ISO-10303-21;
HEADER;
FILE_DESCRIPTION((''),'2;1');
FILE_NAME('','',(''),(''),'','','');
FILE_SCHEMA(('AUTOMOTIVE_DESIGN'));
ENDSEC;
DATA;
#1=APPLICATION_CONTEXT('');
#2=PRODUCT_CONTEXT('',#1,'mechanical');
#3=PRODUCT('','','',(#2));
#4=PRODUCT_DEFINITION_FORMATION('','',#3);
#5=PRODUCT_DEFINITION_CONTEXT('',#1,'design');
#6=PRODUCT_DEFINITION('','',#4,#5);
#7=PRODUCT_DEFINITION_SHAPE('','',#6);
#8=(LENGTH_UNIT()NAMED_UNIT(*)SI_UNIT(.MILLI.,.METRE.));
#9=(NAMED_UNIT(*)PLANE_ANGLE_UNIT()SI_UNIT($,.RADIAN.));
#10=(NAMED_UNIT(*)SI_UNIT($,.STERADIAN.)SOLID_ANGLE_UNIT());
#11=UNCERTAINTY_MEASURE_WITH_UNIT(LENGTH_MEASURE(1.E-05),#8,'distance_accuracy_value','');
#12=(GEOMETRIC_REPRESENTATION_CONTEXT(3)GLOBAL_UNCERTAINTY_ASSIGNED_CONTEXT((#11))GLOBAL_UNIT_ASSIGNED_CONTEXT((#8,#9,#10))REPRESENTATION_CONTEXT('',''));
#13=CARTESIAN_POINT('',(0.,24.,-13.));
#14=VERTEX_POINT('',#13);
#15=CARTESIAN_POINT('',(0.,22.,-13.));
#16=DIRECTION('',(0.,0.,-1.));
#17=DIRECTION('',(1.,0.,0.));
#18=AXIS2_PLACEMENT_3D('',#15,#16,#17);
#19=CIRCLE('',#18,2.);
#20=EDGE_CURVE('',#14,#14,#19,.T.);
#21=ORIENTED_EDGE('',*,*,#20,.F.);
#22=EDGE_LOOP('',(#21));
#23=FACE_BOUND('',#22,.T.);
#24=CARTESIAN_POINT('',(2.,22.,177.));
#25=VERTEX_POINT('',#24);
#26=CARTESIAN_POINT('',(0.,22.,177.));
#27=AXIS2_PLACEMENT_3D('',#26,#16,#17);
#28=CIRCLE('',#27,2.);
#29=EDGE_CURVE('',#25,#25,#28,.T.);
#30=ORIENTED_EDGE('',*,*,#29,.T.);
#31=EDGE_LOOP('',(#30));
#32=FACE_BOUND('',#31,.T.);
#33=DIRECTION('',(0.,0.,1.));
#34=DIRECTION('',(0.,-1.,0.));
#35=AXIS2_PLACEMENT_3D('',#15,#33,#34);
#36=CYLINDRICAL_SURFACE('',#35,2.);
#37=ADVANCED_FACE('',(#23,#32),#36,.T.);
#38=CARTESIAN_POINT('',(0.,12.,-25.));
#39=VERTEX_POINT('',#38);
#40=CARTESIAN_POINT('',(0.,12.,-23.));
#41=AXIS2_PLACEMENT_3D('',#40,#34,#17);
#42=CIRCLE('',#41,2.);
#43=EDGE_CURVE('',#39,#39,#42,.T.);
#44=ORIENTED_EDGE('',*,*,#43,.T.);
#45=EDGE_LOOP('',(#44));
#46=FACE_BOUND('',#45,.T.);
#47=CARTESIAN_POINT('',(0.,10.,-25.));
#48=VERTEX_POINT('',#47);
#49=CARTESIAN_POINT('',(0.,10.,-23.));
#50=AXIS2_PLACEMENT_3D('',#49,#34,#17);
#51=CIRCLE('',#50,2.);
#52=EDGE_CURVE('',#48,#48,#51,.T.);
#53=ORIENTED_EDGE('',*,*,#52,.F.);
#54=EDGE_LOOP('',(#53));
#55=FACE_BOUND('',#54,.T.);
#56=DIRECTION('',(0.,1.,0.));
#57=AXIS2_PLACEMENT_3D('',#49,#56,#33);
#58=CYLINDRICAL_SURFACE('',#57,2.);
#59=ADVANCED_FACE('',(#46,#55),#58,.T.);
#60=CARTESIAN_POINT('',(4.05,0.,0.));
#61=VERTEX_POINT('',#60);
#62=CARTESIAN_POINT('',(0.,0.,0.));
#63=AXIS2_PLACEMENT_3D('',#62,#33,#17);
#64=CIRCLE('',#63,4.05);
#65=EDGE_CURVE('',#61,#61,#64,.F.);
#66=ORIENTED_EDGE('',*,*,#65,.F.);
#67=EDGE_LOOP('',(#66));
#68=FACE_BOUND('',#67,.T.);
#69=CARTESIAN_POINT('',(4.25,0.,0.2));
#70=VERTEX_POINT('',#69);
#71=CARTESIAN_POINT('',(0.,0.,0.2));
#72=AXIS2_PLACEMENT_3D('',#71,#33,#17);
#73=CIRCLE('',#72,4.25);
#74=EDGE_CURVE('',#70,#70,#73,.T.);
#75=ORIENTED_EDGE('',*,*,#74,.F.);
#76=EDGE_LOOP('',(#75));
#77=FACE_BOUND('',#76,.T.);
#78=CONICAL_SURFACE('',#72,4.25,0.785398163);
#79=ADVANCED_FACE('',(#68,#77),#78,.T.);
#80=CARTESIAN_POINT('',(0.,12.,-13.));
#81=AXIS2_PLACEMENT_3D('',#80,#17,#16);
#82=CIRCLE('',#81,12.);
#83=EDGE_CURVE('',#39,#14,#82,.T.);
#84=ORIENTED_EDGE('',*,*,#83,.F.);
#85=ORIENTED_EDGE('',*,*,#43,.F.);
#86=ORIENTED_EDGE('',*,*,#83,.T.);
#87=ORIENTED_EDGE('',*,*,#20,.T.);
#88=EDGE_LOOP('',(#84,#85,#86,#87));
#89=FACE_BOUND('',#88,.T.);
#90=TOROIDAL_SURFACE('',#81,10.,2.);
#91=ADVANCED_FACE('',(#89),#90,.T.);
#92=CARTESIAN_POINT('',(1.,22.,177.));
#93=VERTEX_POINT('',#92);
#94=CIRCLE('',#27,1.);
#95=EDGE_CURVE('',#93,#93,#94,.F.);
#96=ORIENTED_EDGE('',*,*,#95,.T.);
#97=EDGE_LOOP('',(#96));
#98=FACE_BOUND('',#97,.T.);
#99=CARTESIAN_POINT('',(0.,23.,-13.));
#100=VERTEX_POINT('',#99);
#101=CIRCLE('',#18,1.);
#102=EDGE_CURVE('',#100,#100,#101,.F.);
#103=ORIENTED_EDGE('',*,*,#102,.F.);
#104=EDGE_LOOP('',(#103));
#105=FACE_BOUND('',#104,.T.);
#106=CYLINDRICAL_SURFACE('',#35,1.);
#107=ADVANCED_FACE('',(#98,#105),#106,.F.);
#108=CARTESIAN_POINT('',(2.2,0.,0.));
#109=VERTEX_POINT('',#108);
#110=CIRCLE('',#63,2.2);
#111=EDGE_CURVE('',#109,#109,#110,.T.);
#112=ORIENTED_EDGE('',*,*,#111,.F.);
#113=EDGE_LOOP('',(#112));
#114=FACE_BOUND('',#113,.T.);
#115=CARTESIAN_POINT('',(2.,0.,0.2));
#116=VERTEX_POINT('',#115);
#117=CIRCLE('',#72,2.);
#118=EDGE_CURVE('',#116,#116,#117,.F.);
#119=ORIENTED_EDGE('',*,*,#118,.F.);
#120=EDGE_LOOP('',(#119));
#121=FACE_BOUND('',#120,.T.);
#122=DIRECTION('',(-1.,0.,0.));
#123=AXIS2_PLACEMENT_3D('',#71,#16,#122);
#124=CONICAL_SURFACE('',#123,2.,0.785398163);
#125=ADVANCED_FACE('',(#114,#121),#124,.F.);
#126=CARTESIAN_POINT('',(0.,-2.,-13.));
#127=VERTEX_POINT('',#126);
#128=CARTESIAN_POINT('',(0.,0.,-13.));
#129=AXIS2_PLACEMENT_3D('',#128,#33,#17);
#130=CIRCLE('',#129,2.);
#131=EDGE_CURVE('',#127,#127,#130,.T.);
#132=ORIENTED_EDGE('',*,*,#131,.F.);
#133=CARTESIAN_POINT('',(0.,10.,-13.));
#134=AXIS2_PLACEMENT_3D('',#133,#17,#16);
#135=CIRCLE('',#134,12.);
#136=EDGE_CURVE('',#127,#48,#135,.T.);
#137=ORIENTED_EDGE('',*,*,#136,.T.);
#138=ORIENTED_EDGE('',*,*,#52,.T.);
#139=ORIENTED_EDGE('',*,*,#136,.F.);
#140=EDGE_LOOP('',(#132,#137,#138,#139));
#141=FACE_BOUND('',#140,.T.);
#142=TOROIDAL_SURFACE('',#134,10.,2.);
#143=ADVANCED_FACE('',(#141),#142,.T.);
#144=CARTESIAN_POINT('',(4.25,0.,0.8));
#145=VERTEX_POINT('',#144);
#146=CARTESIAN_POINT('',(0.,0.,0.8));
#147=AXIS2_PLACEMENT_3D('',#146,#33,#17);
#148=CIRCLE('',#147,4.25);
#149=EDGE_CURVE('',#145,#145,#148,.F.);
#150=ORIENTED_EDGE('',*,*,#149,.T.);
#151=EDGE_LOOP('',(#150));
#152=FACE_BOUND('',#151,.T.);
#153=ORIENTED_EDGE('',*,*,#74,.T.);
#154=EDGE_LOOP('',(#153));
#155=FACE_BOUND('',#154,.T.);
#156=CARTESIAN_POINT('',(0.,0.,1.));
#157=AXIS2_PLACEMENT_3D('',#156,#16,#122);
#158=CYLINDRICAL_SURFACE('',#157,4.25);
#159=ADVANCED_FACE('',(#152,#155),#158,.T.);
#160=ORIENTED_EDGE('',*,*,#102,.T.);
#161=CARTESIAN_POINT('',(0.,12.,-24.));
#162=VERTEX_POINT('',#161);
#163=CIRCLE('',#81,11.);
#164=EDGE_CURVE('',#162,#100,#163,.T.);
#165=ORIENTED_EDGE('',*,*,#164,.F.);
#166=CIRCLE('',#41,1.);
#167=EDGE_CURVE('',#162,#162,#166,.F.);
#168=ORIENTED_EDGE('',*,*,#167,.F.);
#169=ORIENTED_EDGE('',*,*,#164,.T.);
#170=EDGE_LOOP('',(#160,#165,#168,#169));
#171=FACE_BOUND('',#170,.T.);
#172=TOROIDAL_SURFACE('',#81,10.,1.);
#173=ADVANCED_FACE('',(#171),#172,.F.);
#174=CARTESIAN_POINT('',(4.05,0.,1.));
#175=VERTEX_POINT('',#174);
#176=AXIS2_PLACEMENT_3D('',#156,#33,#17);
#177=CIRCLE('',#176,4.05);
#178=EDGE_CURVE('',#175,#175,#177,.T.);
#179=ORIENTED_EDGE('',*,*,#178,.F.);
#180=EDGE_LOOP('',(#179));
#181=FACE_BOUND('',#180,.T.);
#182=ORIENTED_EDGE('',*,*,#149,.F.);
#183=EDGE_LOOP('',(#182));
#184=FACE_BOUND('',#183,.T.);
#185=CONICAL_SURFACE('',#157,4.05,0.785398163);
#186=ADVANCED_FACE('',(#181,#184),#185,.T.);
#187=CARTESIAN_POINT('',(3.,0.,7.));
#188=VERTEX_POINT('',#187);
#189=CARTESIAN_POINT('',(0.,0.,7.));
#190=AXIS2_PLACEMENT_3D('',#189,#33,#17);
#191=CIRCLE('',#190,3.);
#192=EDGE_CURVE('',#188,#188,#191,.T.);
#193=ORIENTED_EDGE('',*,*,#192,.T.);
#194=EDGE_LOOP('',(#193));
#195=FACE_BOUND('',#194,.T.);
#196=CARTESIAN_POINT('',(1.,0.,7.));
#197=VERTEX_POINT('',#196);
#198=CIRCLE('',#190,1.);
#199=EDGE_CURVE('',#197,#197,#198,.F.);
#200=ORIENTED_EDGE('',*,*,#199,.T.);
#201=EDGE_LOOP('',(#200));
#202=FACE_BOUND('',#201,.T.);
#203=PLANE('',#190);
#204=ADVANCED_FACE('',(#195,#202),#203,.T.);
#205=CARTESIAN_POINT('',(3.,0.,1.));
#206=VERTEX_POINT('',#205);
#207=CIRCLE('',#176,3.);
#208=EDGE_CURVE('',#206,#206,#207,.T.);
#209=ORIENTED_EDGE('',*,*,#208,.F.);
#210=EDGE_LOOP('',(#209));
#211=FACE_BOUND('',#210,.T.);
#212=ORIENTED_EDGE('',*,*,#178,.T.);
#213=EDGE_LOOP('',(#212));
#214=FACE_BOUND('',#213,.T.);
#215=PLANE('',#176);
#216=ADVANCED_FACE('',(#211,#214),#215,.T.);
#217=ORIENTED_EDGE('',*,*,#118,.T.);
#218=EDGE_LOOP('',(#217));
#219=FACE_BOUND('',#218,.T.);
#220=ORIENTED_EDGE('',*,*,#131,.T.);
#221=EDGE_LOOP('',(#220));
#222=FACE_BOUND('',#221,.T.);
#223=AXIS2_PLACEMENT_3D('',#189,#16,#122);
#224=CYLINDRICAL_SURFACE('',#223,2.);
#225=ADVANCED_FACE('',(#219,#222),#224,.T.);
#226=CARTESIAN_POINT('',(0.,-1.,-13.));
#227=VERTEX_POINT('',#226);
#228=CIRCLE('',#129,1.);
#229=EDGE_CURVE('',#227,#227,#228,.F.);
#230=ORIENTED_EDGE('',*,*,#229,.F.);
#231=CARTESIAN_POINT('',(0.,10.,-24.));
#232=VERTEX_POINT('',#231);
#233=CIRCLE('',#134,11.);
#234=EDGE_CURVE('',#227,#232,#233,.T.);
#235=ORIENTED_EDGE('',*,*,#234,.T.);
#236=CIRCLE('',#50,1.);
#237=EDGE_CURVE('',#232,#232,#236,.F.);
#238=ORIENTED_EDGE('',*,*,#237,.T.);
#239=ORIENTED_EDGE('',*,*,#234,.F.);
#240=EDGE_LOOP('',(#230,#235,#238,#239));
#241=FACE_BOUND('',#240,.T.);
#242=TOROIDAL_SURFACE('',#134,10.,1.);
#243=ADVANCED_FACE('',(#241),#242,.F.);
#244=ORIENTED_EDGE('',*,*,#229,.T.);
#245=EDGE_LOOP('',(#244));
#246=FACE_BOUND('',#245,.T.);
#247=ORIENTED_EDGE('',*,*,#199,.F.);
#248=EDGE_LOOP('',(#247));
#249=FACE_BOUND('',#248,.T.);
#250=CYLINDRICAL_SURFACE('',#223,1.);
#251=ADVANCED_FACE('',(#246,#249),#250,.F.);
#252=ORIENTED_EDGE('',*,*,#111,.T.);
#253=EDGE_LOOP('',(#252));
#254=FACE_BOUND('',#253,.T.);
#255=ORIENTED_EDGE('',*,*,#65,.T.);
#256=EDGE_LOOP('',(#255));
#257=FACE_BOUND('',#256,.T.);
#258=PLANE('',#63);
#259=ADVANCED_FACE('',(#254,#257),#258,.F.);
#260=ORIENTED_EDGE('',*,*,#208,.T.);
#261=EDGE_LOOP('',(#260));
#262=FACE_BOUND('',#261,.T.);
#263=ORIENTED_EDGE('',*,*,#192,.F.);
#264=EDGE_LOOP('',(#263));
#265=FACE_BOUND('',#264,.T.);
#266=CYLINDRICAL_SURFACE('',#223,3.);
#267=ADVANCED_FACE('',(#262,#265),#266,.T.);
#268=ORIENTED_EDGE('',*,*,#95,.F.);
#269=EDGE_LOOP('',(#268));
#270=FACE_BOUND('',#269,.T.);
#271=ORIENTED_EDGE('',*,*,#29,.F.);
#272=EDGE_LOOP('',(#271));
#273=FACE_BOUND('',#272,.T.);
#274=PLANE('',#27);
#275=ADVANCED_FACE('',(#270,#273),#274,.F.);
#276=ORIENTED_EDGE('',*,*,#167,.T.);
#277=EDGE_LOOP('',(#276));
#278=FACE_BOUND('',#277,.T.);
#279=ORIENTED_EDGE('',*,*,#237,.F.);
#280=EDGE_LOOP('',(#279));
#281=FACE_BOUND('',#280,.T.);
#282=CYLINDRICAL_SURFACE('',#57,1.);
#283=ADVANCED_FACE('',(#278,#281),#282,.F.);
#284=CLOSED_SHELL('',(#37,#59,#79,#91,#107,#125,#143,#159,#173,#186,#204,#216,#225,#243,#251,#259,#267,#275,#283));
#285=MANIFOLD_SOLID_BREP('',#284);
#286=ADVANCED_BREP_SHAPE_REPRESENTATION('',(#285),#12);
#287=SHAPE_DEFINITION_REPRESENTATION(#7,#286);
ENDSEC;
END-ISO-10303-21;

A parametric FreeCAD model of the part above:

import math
import FreeCAD as App
import Part
import Sketcher
from FreeCAD import Vector
Q = App.Units.Quantity


def edges_at(feature, points):
    """Names of the edges that pass closest to the given points."""
    edges = feature.Shape.Edges
    near = lambda p: min(range(len(edges)), key=lambda i: edges[i].distToShape(Part.Vertex(*p))[0])
    return sorted({f"Edge{near(p) + 1}" for p in points})

doc = App.newDocument("Part")
body = doc.addObject("PartDesign::Body", "Body")

sketch1 = doc.addObject("Sketcher::SketchObject", "Sketch")
body.addObject(sketch1)
sketch1.AttachmentSupport = (doc.XY_Plane, [""])
sketch1.MapMode = "FlatFace"
sketch1.addGeometry(Part.Circle(Vector(0, 0, 0), Vector(0, 0, 1), 4.2), False)
sketch1.addConstraint([
    Sketcher.Constraint("Coincident", 0, 3, -1, 1),
    Sketcher.Constraint("Diameter", 0, Q("8.5 mm")),
])
pad1 = doc.addObject("PartDesign::Pad", "Pad")
body.addObject(pad1)
pad1.Profile = sketch1
pad1.Length = 1

sketch2 = doc.addObject("Sketcher::SketchObject", "Sketch001")
body.addObject(sketch2)
sketch2.AttachmentSupport = (doc.XY_Plane, [""])
sketch2.MapMode = "FlatFace"
sketch2.AttachmentOffset = App.Placement(Vector(0, 0, 1), App.Rotation())
sketch2.addGeometry(Part.Circle(Vector(0, 0, 0), Vector(0, 0, 1), 3), False)
sketch2.addConstraint([
    Sketcher.Constraint("Coincident", 0, 3, -1, 1),
    Sketcher.Constraint("Diameter", 0, Q("6 mm")),
])
pad2 = doc.addObject("PartDesign::Pad", "Pad001")
body.addObject(pad2)
pad2.Profile = sketch2
pad2.Length = 6

sketch3 = doc.addObject("Sketcher::SketchObject", "Sketch002")
body.addObject(sketch3)
sketch3.AttachmentSupport = (doc.XY_Plane, [""])
sketch3.MapMode = "FlatFace"
sketch3.addGeometry(Part.Circle(Vector(0, 0, 0), Vector(0, 0, 1), 2), False)
sketch3.addConstraint([
    Sketcher.Constraint("Coincident", 0, 3, -1, 1),
    Sketcher.Constraint("Diameter", 0, Q("4 mm")),
])
pocket1 = doc.addObject("PartDesign::Pocket", "Pocket")
body.addObject(pocket1)
pocket1.Profile = sketch3
pocket1.Type = "ThroughAll"
pocket1.Reversed = True
doc.recompute()

chamfer = doc.addObject("PartDesign::Chamfer", "Chamfer")
body.addObject(chamfer)
chamfer.Base = (pocket1, edges_at(pocket1, [(2, 0, 0), (-4.25, 0, 0), (-4.25, 0, 1)]))
chamfer.Size = 0.2

sketch4 = doc.addObject("Sketcher::SketchObject", "Sketch003")
body.addObject(sketch4)
sketch4.AttachmentSupport = (doc.XY_Plane, [""])
sketch4.MapMode = "FlatFace"
sketch4.AttachmentOffset = App.Placement(Vector(0, 0, 7), App.Rotation())
sketch4.addGeometry([
    Part.Circle(Vector(0, 0, 0), Vector(0, 0, 1), 2),
    Part.Circle(Vector(0, 0, 0), Vector(0, 0, 1), 1),
], False)
sketch4.addConstraint([
    Sketcher.Constraint("Coincident", 0, 3, -1, 1),
    Sketcher.Constraint("Coincident", 1, 3, -1, 1),
    Sketcher.Constraint("Diameter", 0, Q("4 mm")),
    Sketcher.Constraint("Diameter", 1, Q("2 mm")),
])

sketch5 = doc.addObject("Sketcher::SketchObject", "Sketch004")
body.addObject(sketch5)
sketch5.AttachmentSupport = (doc.YZ_Plane, [""])
sketch5.MapMode = "FlatFace"
sketch5.addGeometry([
    Part.LineSegment(Vector(0, 7, 0), Vector(0, -13, 0)),
    Part.ArcOfCircle(Part.Circle(Vector(10, -13, 0), Vector(0, 0, 1), 10), math.radians(180), math.radians(270)),
    Part.LineSegment(Vector(10, -23, 0), Vector(12, -23, 0)),
    Part.ArcOfCircle(Part.Circle(Vector(12, -13, 0), Vector(0, 0, 1), 10), math.radians(-90), math.radians(0)),
    Part.LineSegment(Vector(22, -13, 0), Vector(22, 177, 0)),
], False)
sketch5.addConstraint([
    Sketcher.Constraint("Tangent", 0, 2, 1, 1),
    Sketcher.Constraint("Tangent", 1, 2, 2, 1),
    Sketcher.Constraint("Tangent", 2, 2, 3, 1),
    Sketcher.Constraint("Tangent", 3, 2, 4, 1),
    Sketcher.Constraint("Vertical", 0),
    Sketcher.Constraint("Horizontal", 2),
    Sketcher.Constraint("Vertical", 4),
    Sketcher.Constraint("Equal", 1, 3),
    Sketcher.Constraint("PointOnObject", 0, 1, -2),
    Sketcher.Constraint("Radius", 1, Q("10 mm")),
    Sketcher.Constraint("DistanceX", 2, 1, 2, 2, Q("2 mm")),
    Sketcher.Constraint("DistanceY", 0, 2, 0, 1, Q("20 mm")),
    Sketcher.Constraint("DistanceY", 4, 1, 4, 2, Q("190 mm")),
    Sketcher.Constraint("DistanceY", 1, 3, -1, 1, Q("13 mm")),
])
doc.recompute()

additivepipe = doc.addObject("PartDesign::AdditivePipe", "AdditivePipe")
body.addObject(additivepipe)
additivepipe.Profile = sketch4
additivepipe.Spine = (sketch5, ["Edge1", "Edge2", "Edge3", "Edge4", "Edge5"])

doc.recompute()
